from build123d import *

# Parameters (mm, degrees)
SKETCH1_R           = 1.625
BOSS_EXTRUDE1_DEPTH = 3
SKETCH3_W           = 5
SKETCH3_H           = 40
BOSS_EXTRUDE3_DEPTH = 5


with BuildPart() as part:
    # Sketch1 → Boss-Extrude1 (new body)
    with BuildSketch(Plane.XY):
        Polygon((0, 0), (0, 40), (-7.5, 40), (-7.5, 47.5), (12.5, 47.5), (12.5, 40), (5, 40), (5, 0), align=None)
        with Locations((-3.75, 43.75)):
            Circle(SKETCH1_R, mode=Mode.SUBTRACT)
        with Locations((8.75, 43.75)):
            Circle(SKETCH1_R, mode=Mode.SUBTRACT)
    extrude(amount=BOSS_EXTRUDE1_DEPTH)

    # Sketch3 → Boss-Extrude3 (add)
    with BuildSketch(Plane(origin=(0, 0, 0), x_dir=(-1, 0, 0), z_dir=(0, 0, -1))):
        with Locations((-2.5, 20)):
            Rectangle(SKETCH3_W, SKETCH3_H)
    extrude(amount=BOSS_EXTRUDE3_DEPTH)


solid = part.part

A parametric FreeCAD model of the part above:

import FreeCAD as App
import Part
import Sketcher

V = App.Vector


def add_polygon(sketch, points):
    """Adds a closed chain of lines whose ends are joined by coincident constraints."""
    first, n = sketch.GeometryCount, len(points)
    for a, b in zip(points, points[1:] + points[:1]):
        sketch.addGeometry(Part.LineSegment(App.Vector(*a, 0), App.Vector(*b, 0)), False)
    for i in range(n):
        sketch.addConstraint(Sketcher.Constraint("Coincident", first + i, 2, first + (i + 1) % n, 1))

doc = App.newDocument("Part")
params = doc.addObject("Spreadsheet::Sheet", "Params")
for row, (alias, value) in enumerate([
    ("sketch1_diameter", "3.25 mm"),
    ("sketch1_width", "5 mm"),
    ("sketch1_width2", "20 mm"),
    ("sketch1_height", "40 mm"),
    ("pad1_length", "3 mm"),
    ("sketch2_width", "5 mm"),
    ("sketch2_height", "40 mm"),
    ("pad2_length", "5 mm"),
], start=1):
    params.set(f"A{row}", alias)
    params.set(f"B{row}", "=" + value)
    params.setAlias(f"B{row}", alias)

body = doc.addObject("PartDesign::Body", "Body")

# Sketch on XY plane
sketch1 = body.newObject("Sketcher::SketchObject", "Sketch")
sketch1.AttachmentSupport = (doc.getObject("XY_Plane"), [""])
sketch1.MapMode = "FlatFace"
add_polygon(sketch1, [(0, 40), (0, 0), (5, 0), (5, 40), (12.5, 40), (12.5, 47.5), (-7.5, 47.5), (-7.5, 40)])  # lines 0-7
sketch1.addGeometry(Part.Circle(V(8.8, 43.8, 0), V(0, 0, 1), 1.6), False)  # 8
sketch1.addGeometry(Part.Circle(V(-3.8, 43.8, 0), V(0, 0, 1), 1.6), False)  # 9
sketch1.addConstraint([
    Sketcher.Constraint("Vertical", 0),
    Sketcher.Constraint("Horizontal", 1),
    Sketcher.Constraint("Vertical", 2),
    Sketcher.Constraint("Horizontal", 3),
    Sketcher.Constraint("Vertical", 4),
    Sketcher.Constraint("Horizontal", 5),
    Sketcher.Constraint("Vertical", 6),
    Sketcher.Constraint("Horizontal", 7),
    Sketcher.Constraint("Coincident", 0, 2, -1, 1),
    Sketcher.Constraint("Equal", 8, 9),
    Sketcher.Constraint("Horizontal", 8, 3, 9, 3),
    Sketcher.Constraint("Horizontal", 3, 2, 6, 2),
    Sketcher.Constraint("Equal", 3, 7),
    Sketcher.Constraint("Equal", 7, 4),
    Sketcher.Constraint("Diameter", 8, 3.25),
    Sketcher.Constraint("DistanceX", 1, 1, 1, 2, 5.0),
    Sketcher.Constraint("DistanceX", 5, 2, 5, 1, 20.0),
    Sketcher.Constraint("DistanceY", 0, 2, 0, 1, 40.0),
    Sketcher.Constraint("DistanceX", 9, 3, 8, 3, 12.5),
    Sketcher.Constraint("DistanceX", -1, 1, 8, 3, 8.75),
    Sketcher.Constraint("DistanceY", -1, 1, 8, 3, 43.75),
])
sketch1.setExpression("Constraints[22]", "Params.sketch1_diameter")
sketch1.setExpression("Constraints[23]", "Params.sketch1_width")
sketch1.setExpression("Constraints[24]", "Params.sketch1_width2")
sketch1.setExpression("Constraints[25]", "Params.sketch1_height")
pad1 = body.newObject("PartDesign::Pad", "Pad")
pad1.Profile = sketch1
pad1.setExpression("Length", "Params.pad1_length")

# Sketch on XY plane
sketch2 = body.newObject("Sketcher::SketchObject", "Sketch001")
sketch2.AttachmentSupport = (doc.getObject("XY_Plane"), [""])
sketch2.MapMode = "FlatFace"
add_polygon(sketch2, [(5, 40), (5, 0), (0, 0), (0, 40)])  # lines 0-3
sketch2.addConstraint([
    Sketcher.Constraint("Vertical", 0),
    Sketcher.Constraint("Horizontal", 1),
    Sketcher.Constraint("Vertical", 2),
    Sketcher.Constraint("Horizontal", 3),
    Sketcher.Constraint("Coincident", 1, 2, -1, 1),
    Sketcher.Constraint("DistanceX", 1, 2, 1, 1, 5.0),
    Sketcher.Constraint("DistanceY", 0, 2, 0, 1, 40.0),
])
sketch2.setExpression("Constraints[9]", "Params.sketch2_width")
sketch2.setExpression("Constraints[10]", "Params.sketch2_height")
pad2 = body.newObject("PartDesign::Pad", "Pad001")
pad2.Profile = sketch2
pad2.setExpression("Length", "Params.pad2_length")
pad2.Reversed = True

doc.recompute()
